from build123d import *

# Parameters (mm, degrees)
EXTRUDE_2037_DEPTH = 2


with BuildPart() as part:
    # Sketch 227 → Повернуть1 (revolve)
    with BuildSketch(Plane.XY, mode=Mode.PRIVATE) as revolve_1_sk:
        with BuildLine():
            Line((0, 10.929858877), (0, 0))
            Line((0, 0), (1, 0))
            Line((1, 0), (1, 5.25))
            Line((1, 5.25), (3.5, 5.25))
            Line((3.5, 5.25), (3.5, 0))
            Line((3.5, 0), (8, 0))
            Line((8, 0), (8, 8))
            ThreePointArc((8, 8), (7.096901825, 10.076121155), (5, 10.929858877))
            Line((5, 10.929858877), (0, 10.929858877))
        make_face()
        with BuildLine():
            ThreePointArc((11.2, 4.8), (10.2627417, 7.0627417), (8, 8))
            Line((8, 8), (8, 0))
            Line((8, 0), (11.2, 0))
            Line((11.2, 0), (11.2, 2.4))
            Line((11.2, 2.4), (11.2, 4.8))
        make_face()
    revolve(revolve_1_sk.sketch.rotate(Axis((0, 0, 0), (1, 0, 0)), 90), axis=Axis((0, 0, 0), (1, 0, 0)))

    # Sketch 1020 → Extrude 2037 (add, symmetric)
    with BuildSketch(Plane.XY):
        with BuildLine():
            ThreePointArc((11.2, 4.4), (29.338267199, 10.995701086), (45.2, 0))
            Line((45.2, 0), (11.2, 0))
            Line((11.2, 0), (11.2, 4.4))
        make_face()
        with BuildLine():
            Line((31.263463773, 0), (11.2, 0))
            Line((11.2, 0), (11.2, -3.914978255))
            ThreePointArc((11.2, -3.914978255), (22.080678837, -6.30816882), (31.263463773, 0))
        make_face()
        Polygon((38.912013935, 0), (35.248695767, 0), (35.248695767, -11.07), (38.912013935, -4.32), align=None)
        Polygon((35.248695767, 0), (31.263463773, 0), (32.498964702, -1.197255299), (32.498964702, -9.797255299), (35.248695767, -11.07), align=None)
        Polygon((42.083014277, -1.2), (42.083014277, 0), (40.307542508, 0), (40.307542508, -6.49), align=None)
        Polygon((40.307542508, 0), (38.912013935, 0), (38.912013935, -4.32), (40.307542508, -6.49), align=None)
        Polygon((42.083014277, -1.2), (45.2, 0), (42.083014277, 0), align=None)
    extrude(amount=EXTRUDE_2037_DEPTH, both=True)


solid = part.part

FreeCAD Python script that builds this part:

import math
import FreeCAD as App
import Part
import Sketcher

V = App.Vector

doc = App.newDocument("Part")
params = doc.addObject("Spreadsheet::Sheet", "Params")
for row, (alias, value) in enumerate([
    ("sketch1_radius", "3 mm"),
    ("sketch1_radius2", "3.2 mm"),
    ("sketch1_width", "1 mm"),
    ("sketch1_width2", "5 mm"),
    ("sketch1_width3", "2.5 mm"),
    ("revolution_angle", "360 deg"),
    ("sketch2_radius", "21 mm"),
    ("sketch2_radius2", "14 mm"),
    ("sketch2_height", "8.6 mm"),
    ("sketch2_length", "3.03 mm"),
    ("sketch2_length2", "7.68 mm"),
    ("pad1_length", "4 mm"),
], start=1):
    params.set(f"A{row}", alias)
    params.set(f"B{row}", "=" + value)
    params.setAlias(f"B{row}", alias)

body = doc.addObject("PartDesign::Body", "Body")

sketch1 = body.newObject("Sketcher::SketchObject", "Sketch")
sketch1.AttachmentSupport = (doc.getObject("XY_Plane"), [""])
sketch1.MapMode = "FlatFace"
sketch1.addGeometry(Part.LineSegment(V(0, 10.9, 0), V(0, 0, 0)), False)
sketch1.addGeometry(Part.LineSegment(V(0, 0, 0), V(1, 0, 0)), False)
sketch1.addGeometry(Part.LineSegment(V(1, 0, 0), V(1, 5.2, 0)), False)
sketch1.addGeometry(Part.LineSegment(V(1, 5.2, 0), V(3.5, 5.2, 0)), False)
sketch1.addGeometry(Part.LineSegment(V(3.5, 5.2, 0), V(3.5, 0, 0)), False)
sketch1.addGeometry(Part.LineSegment(V(3.5, 0, 0), V(11.2, 0, 0)), False)
sketch1.addGeometry(Part.LineSegment(V(11.2, 0, 0), V(11.2, 4.8, 0)), False)
sketch1.addGeometry(Part.ArcOfCircle(Part.Circle(V(8, 4.8, 0), V(0, 0, 1), 3.2), math.radians(0), math.radians(90)), False)
sketch1.addGeometry(Part.ArcOfCircle(Part.Circle(V(5, 7.9, 0), V(0, 0, 1), 3), math.radians(1), math.radians(90)), False)
sketch1.addGeometry(Part.LineSegment(V(5, 10.9, 0), V(0, 10.9, 0)), False)
sketch1.addConstraint(Sketcher.Constraint("Coincident", 0, 2, 1, 1))
sketch1.addConstraint(Sketcher.Constraint("Coincident", 1, 2, 2, 1))
sketch1.addConstraint(Sketcher.Constraint("Coincident", 2, 2, 3, 1))
sketch1.addConstraint(Sketcher.Constraint("Coincident", 3, 2, 4, 1))
sketch1.addConstraint(Sketcher.Constraint("Coincident", 4, 2, 5, 1))
sketch1.addConstraint(Sketcher.Constraint("Coincident", 5, 2, 6, 1))
sketch1.addConstraint(Sketcher.Constraint("Tangent", 6, 2, 7, 1))
sketch1.addConstraint(Sketcher.Constraint("Coincident", 7, 2, 8, 1))
sketch1.addConstraint(Sketcher.Constraint("Coincident", 8, 2, 9, 1))
sketch1.addConstraint(Sketcher.Constraint("Coincident", 9, 2, 0, 1))
sketch1.addConstraint(Sketcher.Constraint("Vertical", 0))
sketch1.addConstraint(Sketcher.Constraint("Horizontal", 1))
sketch1.addConstraint(Sketcher.Constraint("Vertical", 2))
sketch1.addConstraint(Sketcher.Constraint("Horizontal", 3))
sketch1.addConstraint(Sketcher.Constraint("Vertical", 4))
sketch1.addConstraint(Sketcher.Constraint("Horizontal", 5))
sketch1.addConstraint(Sketcher.Constraint("Vertical", 6))
sketch1.addConstraint(Sketcher.Constraint("Horizontal", 9))
sketch1.addConstraint(Sketcher.Constraint("Coincident", 0, 2, -1, 1))
sketch1.addConstraint(Sketcher.Constraint("PointOnObject", 4, 2, -1))
sketch1.addConstraint(Sketcher.Constraint("Radius", 8, 3.0))
sketch1.addConstraint(Sketcher.Constraint("Radius", 7, 3.2))
sketch1.addConstraint(Sketcher.Constraint("DistanceX", 1, 1, 1, 2, 1.0))
sketch1.addConstraint(Sketcher.Constraint("DistanceX", 9, 2, 9, 1, 5.0))
sketch1.addConstraint(Sketcher.Constraint("DistanceX", 3, 1, 3, 2, 2.5))
sketch1.addConstraint(Sketcher.Constraint("DistanceX", 5, 1, 5, 2, 7.7))
sketch1.addConstraint(Sketcher.Constraint("DistanceY", 6, 1, 6, 2, 4.8))
sketch1.addConstraint(Sketcher.Constraint("DistanceX", -1, 1, 7, 2, 8.0))
sketch1.addConstraint(Sketcher.Constraint("DistanceY", 2, 1, 2, 2, 5.25))
sketch1.addConstraint(Sketcher.Constraint("DistanceY", 0, 2, 0, 1, 10.929859))
sketch1.setExpression("Constraints[20]", "Params.sketch1_radius")
sketch1.setExpression("Constraints[21]", "Params.sketch1_radius2")
sketch1.setExpression("Constraints[22]", "Params.sketch1_width")
sketch1.setExpression("Constraints[23]", "Params.sketch1_width2")
sketch1.setExpression("Constraints[24]", "Params.sketch1_width3")
revolution = body.newObject("PartDesign::Revolution", "Revolution")
revolution.Profile = sketch1
revolution.ReferenceAxis = (sketch1, ["H_Axis"])
revolution.setExpression("Angle", "Params.revolution_angle")

sketch2 = body.newObject("Sketcher::SketchObject", "Sketch001")
sketch2.AttachmentSupport = (doc.getObject("XY_Plane"), [""])
sketch2.MapMode = "FlatFace"
sketch2.addGeometry(Part.ArcOfCircle(Part.Circle(V(26.6, -9.8, 0), V(0, 0, 1), 21), math.radians(28), math.radians(137)), False)
sketch2.addGeometry(Part.LineSegment(V(11.2, 4.4, 0), V(11.2, -3.9, 0)), False)
sketch2.addGeometry(Part.ArcOfCircle(Part.Circle(V(19.4, 7.4, 0), V(0, 0, 1), 14), math.radians(-126), math.radians(-32)), False)
sketch2.addGeometry(Part.LineSegment(V(31.3, 0, 0), V(32.5, -1.2, 0)), False)
sketch2.addGeometry(Part.LineSegment(V(32.5, -1.2, 0), V(32.5, -9.8, 0)), False)
sketch2.addGeometry(Part.LineSegment(V(32.5, -9.8, 0), V(35.2, -11.1, 0)), False)
sketch2.addGeometry(Part.LineSegment(V(35.2, -11.1, 0), V(38.9, -4.3, 0)), False)
sketch2.addGeometry(Part.LineSegment(V(38.9, -4.3, 0), V(40.3, -6.5, 0)), False)
sketch2.addGeometry(Part.LineSegment(V(40.3, -6.5, 0), V(42.1, -1.2, 0)), False)
sketch2.addGeometry(Part.LineSegment(V(42.1, -1.2, 0), V(45.2, 0, 0)), False)
sketch2.addConstraint(Sketcher.Constraint("Coincident", 0, 2, 1, 1))
sketch2.addConstraint(Sketcher.Constraint("Coincident", 1, 2, 2, 1))
sketch2.addConstraint(Sketcher.Constraint("Coincident", 2, 2, 3, 1))
sketch2.addConstraint(Sketcher.Constraint("Coincident", 3, 2, 4, 1))
sketch2.addConstraint(Sketcher.Constraint("Coincident", 4, 2, 5, 1))
sketch2.addConstraint(Sketcher.Constraint("Coincident", 5, 2, 6, 1))
sketch2.addConstraint(Sketcher.Constraint("Coincident", 6, 2, 7, 1))
sketch2.addConstraint(Sketcher.Constraint("Coincident", 7, 2, 8, 1))
sketch2.addConstraint(Sketcher.Constraint("Coincident", 8, 2, 9, 1))
sketch2.addConstraint(Sketcher.Constraint("Coincident", 9, 2, 0, 1))
sketch2.addConstraint(Sketcher.Constraint("Vertical", 1))
sketch2.addConstraint(Sketcher.Constraint("Vertical", 4))
sketch2.addConstraint(Sketcher.Constraint("PointOnObject", 2, 2, -1))
sketch2.addConstraint(Sketcher.Constraint("PointOnObject", 9, 2, -1))
sketch2.addConstraint(Sketcher.Constraint("Radius", 0, 21.0))
sketch2.addConstraint(Sketcher.Constraint("Radius", 2, 14.0))
sketch2.addConstraint(Sketcher.Constraint("DistanceY", 4, 2, 4, 1, 8.6))
sketch2.addConstraint(Sketcher.Constraint("DistanceX", -1, 1, 0, 2, 11.2))
sketch2.addConstraint(Sketcher.Constraint("DistanceY", -1, 1, 0, 2, 4.4))
sketch2.addConstraint(Sketcher.Constraint("DistanceY", 8, 2, -1, 1, 1.2))
sketch2.addConstraint(Sketcher.Constraint("DistanceX", -1, 1, 9, 2, 45.2))
sketch2.addConstraint(Sketcher.Constraint("Distance", 5, 3.03))
sketch2.addConstraint(Sketcher.Constraint("Distance", 6, 7.68))
sketch2.addConstraint(Sketcher.Constraint("Distance", 7, 2.58))
sketch2.addConstraint(Sketcher.Constraint("Distance", 8, 5.58))
sketch2.addConstraint(Sketcher.Constraint("Distance", 9, 3.34))
sketch2.addConstraint(Sketcher.Constraint("DistanceY", 5, 2, -1, 1, 11.07))
sketch2.addConstraint(Sketcher.Constraint("DistanceY", 6, 2, -1, 1, 4.32))
sketch2.addConstraint(Sketcher.Constraint("DistanceY", 7, 2, -1, 1, 6.49))
sketch2.addConstraint(Sketcher.Constraint("DistanceY", 1, 2, 1, 1, 8.314978))
sketch2.addConstraint(Sketcher.Constraint("DistanceX", 2, 2, 3, 2, 1.235501))
sketch2.addConstraint(Sketcher.Constraint("Distance", 3, 1.720431))
sketch2.setExpression("Constraints[14]", "Params.sketch2_radius")
sketch2.setExpression("Constraints[15]", "Params.sketch2_radius2")
sketch2.setExpression("Constraints[16]", "Params.sketch2_height")
sketch2.setExpression("Constraints[21]", "Params.sketch2_length")
sketch2.setExpression("Constraints[22]", "Params.sketch2_length2")
pad1 = body.newObject("PartDesign::Pad", "Pad")
pad1.Profile = sketch2
pad1.setExpression("Length", "Params.pad1_length")
pad1.Midplane = True

doc.recompute()
